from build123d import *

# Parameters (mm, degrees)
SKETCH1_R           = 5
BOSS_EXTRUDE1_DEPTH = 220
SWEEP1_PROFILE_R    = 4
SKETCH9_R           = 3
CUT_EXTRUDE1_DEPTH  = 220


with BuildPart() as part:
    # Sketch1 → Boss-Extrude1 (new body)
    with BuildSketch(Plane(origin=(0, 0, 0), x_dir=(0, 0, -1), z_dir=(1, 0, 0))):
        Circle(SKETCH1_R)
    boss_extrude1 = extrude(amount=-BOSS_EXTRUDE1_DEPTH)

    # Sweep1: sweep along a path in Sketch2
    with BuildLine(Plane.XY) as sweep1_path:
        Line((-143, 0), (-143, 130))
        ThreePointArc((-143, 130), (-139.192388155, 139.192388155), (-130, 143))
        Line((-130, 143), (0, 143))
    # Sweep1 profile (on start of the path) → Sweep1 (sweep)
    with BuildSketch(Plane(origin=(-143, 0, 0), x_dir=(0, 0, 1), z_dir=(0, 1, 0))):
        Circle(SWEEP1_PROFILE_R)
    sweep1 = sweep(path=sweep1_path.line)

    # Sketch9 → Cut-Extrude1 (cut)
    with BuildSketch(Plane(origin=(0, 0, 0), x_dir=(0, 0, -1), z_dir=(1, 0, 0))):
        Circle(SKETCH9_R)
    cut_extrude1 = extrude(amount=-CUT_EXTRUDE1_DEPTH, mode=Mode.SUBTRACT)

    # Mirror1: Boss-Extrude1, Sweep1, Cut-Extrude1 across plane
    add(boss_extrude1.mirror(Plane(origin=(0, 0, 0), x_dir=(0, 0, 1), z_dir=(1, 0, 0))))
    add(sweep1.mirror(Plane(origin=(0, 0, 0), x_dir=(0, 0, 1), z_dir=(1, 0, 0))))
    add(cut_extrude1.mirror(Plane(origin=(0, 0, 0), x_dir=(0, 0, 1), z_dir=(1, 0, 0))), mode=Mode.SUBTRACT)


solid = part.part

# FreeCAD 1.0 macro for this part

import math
import FreeCAD as App
import Part
import Sketcher

doc = App.newDocument("Part")
body = doc.addObject("PartDesign::Body", "Body")

sketch1 = doc.addObject("Sketcher::SketchObject", "Sketch")
body.addObject(sketch1)
sketch1.AttachmentSupport = (doc.YZ_Plane, [""])
sketch1.MapMode = "FlatFace"
sketch1.addGeometry(Part.Circle(App.Vector(0, 0, 0), App.Vector(0, 0, 1), 5), False)
sketch1.addConstraint([
    Sketcher.Constraint("Coincident", 0, 3, -1, 1),
    Sketcher.Constraint("Diameter", 0, 10.0),
])
pad1 = doc.addObject("PartDesign::Pad", "Pad")
body.addObject(pad1)
pad1.Profile = sketch1
pad1.Length = 220
pad1.Reversed = True

sketch2 = doc.addObject("Sketcher::SketchObject", "Sketch001")
body.addObject(sketch2)
sketch2.AttachmentSupport = (doc.XZ_Plane, [""])
sketch2.MapMode = "FlatFace"
sketch2.addGeometry(Part.Circle(App.Vector(-143, 0, 0), App.Vector(0, 0, 1), 4), False)
sketch2.addConstraint([
    Sketcher.Constraint("PointOnObject", 0, 3, -1),
    Sketcher.Constraint("Diameter", 0, 8.0),
    Sketcher.Constraint("DistanceX", 0, 3, -1, 1, 143.0),
])

sketch3 = doc.addObject("Sketcher::SketchObject", "Sketch002")
body.addObject(sketch3)
sketch3.AttachmentSupport = (doc.XY_Plane, [""])
sketch3.MapMode = "FlatFace"
sketch3.addGeometry([
    Part.LineSegment(App.Vector(-143, 0, 0), App.Vector(-143, 130, 0)),
    Part.ArcOfCircle(Part.Circle(App.Vector(-130, 130, 0), App.Vector(0, 0, 1), 13), math.radians(90), math.radians(180)),
    Part.LineSegment(App.Vector(-130, 143, 0), App.Vector(0, 143, 0)),
], False)
sketch3.addConstraint([
    Sketcher.Constraint("Tangent", 0, 2, 1, 2),
    Sketcher.Constraint("Tangent", 1, 1, 2, 1),
    Sketcher.Constraint("Vertical", 0),
    Sketcher.Constraint("Horizontal", 2),
    Sketcher.Constraint("PointOnObject", 0, 1, -1),
    Sketcher.Constraint("PointOnObject", 2, 2, -2),
    Sketcher.Constraint("Equal", 2, 0),
    Sketcher.Constraint("Radius", 1, 13.0),
    Sketcher.Constraint("DistanceX", 2, 1, 2, 2, 130.0),
])
doc.recompute()

additivepipe = doc.addObject("PartDesign::AdditivePipe", "AdditivePipe")
body.addObject(additivepipe)
additivepipe.Profile = sketch2
additivepipe.Spine = (sketch3, ["Edge1", "Edge2", "Edge3"])

sketch4 = doc.addObject("Sketcher::SketchObject", "Sketch003")
body.addObject(sketch4)
sketch4.AttachmentSupport = (doc.YZ_Plane, [""])
sketch4.MapMode = "FlatFace"
sketch4.addGeometry(Part.Circle(App.Vector(0, 0, 0), App.Vector(0, 0, 1), 3), False)
sketch4.addConstraint([
    Sketcher.Constraint("Coincident", 0, 3, -1, 1),
    Sketcher.Constraint("Diameter", 0, 6.0),
])
pocket1 = doc.addObject("PartDesign::Pocket", "Pocket")
body.addObject(pocket1)
pocket1.Profile = sketch4
pocket1.Length = 220
doc.recompute()

mirrored = doc.addObject("PartDesign::Mirrored", "Mirrored")
body.addObject(mirrored)
mirrored.Originals = [pad1, additivepipe, pocket1]
mirrored.MirrorPlane = (doc.YZ_Plane, [""])
body.Tip = mirrored

doc.recompute()
